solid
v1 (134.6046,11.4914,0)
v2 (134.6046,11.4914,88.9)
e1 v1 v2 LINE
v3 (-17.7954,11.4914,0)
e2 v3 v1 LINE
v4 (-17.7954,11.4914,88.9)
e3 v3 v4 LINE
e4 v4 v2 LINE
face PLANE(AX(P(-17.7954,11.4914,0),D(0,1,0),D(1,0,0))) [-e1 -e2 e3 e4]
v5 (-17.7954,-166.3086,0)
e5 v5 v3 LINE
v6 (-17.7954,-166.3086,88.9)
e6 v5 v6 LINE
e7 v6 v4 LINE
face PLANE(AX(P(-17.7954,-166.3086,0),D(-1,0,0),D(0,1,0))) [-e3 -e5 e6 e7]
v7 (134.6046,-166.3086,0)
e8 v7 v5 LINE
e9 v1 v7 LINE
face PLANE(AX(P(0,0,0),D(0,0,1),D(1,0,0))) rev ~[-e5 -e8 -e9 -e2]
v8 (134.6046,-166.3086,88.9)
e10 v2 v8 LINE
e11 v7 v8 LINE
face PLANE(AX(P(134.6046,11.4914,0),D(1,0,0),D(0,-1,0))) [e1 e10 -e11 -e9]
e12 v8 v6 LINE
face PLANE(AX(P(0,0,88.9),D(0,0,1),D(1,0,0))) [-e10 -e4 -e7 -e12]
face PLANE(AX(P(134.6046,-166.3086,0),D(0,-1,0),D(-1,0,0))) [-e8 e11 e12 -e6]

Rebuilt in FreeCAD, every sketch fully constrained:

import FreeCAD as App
import Part
import Sketcher
from FreeCAD import Vector
Q = App.Units.Quantity


def add_polygon(sketch, points):
    """Adds a closed chain of lines whose ends are joined by coincident constraints."""
    first, n = sketch.GeometryCount, len(points)
    for a, b in zip(points, points[1:] + points[:1]):
        sketch.addGeometry(Part.LineSegment(App.Vector(*a, 0), App.Vector(*b, 0)), False)
    for i in range(n):
        sketch.addConstraint(Sketcher.Constraint("Coincident", first + i, 2, first + (i + 1) % n, 1))

doc = App.newDocument("Part")
body = doc.addObject("PartDesign::Body", "Body")

# Sketch on XY plane
sketch1 = body.newObject("Sketcher::SketchObject", "Sketch")
sketch1.AttachmentSupport = (doc.getObject("XY_Plane"), [""])
sketch1.MapMode = "FlatFace"
add_polygon(sketch1, [(134.6046, 11.4914), (-17.7954, 11.4914), (-17.7954, -166.3086), (134.6046, -166.3086)])  # lines 0-3
sketch1.addConstraint([
    Sketcher.Constraint("Horizontal", 0),
    Sketcher.Constraint("Vertical", 1),
    Sketcher.Constraint("Horizontal", 2),
    Sketcher.Constraint("Vertical", 3),
    Sketcher.Constraint("DistanceX", 0, 2, 0, 1, Q("6 in")),
    Sketcher.Constraint("DistanceY", 1, 2, 1, 1, Q("7 in")),
    Sketcher.Constraint("DistanceX", 0, 2, -1, 1, Q("0.7006 in")),
    Sketcher.Constraint("DistanceY", -1, 1, 0, 2, Q("11.4914 mm")),
])
pad1 = body.newObject("PartDesign::Pad", "Pad")
pad1.Profile = sketch1
pad1.Length = Q("3.5 in")

doc.recompute()
